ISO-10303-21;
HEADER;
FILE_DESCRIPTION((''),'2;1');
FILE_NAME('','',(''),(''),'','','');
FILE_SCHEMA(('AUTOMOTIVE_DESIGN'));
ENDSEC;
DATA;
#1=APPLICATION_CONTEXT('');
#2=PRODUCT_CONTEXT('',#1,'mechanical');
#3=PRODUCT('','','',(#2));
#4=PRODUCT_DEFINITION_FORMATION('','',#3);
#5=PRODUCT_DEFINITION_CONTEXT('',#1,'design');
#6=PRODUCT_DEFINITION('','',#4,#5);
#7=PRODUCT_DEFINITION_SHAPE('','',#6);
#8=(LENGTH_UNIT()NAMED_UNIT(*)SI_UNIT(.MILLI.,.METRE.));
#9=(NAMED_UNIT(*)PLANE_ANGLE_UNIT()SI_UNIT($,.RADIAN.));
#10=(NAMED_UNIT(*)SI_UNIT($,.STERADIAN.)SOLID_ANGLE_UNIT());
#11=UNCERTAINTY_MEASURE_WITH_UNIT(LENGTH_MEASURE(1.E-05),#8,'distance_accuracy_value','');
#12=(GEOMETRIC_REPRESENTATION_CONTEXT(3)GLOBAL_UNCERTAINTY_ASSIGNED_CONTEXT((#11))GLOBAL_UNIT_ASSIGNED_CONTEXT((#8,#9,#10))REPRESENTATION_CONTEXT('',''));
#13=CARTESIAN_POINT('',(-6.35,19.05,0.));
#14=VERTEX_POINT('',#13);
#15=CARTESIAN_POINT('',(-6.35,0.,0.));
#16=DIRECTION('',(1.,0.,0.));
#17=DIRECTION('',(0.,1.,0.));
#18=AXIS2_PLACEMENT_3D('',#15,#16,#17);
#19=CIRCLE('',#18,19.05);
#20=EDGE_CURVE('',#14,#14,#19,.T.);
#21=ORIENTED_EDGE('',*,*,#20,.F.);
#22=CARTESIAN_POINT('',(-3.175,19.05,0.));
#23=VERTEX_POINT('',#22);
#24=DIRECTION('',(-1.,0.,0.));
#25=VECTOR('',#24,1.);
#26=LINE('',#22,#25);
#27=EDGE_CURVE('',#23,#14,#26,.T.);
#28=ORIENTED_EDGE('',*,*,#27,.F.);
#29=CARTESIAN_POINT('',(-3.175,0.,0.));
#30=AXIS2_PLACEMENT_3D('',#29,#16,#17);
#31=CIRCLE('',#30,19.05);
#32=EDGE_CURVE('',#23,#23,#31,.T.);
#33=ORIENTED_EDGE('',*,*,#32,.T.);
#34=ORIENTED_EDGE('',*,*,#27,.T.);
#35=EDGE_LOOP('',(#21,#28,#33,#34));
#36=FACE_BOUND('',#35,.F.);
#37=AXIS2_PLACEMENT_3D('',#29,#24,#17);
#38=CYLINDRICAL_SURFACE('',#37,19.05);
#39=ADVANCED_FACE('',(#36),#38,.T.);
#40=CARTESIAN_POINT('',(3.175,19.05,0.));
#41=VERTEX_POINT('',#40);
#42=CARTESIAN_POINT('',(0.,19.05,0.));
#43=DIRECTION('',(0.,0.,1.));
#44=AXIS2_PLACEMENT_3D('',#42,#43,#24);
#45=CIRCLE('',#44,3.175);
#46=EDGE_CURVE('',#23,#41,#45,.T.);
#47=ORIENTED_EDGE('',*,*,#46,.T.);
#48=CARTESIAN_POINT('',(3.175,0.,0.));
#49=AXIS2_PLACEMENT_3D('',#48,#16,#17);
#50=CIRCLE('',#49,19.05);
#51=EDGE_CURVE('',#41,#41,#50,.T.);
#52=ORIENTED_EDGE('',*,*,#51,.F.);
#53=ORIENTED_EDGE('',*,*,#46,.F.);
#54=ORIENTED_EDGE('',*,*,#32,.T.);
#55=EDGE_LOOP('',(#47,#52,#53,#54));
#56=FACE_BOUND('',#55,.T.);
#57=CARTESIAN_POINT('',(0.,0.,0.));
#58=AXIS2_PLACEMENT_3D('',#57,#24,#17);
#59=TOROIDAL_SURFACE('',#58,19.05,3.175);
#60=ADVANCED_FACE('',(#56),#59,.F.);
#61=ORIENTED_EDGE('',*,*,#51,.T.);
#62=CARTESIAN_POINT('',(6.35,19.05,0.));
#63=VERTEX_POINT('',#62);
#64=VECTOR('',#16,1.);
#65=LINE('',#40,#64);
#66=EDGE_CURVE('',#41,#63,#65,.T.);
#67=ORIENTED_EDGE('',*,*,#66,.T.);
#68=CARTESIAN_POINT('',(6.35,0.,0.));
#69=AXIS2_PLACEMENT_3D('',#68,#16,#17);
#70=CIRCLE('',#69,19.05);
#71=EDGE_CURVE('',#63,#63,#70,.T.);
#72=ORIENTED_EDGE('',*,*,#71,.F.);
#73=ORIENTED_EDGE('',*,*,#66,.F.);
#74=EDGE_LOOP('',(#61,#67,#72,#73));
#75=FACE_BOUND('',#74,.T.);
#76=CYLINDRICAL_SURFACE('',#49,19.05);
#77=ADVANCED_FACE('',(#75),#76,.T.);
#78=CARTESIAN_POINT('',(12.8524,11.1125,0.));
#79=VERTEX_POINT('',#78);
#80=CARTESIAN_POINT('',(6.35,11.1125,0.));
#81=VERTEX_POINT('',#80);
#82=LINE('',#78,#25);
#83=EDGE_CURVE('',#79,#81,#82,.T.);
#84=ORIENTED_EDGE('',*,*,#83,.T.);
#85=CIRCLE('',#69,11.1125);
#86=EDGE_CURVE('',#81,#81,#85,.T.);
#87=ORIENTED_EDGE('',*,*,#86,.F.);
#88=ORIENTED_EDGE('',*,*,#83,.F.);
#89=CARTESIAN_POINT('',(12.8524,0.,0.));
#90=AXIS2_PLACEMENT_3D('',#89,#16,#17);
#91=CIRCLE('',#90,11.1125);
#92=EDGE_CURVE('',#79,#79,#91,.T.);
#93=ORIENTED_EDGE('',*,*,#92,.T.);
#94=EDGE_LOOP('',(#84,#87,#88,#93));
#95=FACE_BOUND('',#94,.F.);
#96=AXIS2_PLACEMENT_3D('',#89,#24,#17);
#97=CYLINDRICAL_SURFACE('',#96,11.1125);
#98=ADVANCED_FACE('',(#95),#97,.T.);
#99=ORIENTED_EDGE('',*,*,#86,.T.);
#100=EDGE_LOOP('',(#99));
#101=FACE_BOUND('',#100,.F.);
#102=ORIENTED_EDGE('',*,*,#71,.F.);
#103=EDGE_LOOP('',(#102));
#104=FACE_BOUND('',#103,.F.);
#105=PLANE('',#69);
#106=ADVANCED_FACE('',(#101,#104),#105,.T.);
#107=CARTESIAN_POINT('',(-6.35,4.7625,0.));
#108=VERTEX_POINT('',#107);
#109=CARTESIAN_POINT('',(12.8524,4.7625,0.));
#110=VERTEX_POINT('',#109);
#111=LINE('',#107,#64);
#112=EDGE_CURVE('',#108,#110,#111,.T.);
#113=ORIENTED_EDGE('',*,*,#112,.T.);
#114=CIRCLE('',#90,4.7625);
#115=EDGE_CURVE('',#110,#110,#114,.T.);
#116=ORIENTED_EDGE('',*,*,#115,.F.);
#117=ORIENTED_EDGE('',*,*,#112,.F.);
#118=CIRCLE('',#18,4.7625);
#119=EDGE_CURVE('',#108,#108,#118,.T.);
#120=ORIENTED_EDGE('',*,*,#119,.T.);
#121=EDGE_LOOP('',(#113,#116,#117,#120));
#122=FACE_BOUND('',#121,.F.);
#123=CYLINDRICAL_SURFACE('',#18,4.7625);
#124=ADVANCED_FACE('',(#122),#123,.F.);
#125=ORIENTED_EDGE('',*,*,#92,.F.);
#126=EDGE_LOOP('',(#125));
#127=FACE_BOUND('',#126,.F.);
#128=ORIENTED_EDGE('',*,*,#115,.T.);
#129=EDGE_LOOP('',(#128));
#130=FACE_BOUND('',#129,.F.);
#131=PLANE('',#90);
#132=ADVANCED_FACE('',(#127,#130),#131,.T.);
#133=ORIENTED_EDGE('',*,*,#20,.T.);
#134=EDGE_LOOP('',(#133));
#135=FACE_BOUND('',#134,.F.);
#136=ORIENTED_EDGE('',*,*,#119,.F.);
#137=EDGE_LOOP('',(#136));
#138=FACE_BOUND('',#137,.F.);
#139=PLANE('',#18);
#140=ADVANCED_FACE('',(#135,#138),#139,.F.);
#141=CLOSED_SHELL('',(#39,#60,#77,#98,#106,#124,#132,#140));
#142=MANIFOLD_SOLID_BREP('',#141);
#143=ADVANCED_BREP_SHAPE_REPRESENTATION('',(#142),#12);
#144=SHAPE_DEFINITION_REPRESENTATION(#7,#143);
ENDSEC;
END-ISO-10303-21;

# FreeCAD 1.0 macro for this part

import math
import FreeCAD as App
import Part
import Sketcher
Q = App.Units.Quantity

doc = App.newDocument("Part")
body = doc.addObject("PartDesign::Body", "Body")

# Sketch on XY plane
sketch1 = doc.addObject("Sketcher::SketchObject", "Sketch")
body.addObject(sketch1)
sketch1.AttachmentSupport = (doc.XY_Plane, [""])
sketch1.MapMode = "FlatFace"
sketch1.addGeometry([
    Part.ArcOfCircle(Part.Circle(App.Vector(0, 19.1, 0), App.Vector(0, 0, 1), 3.2), math.radians(180), math.radians(360)),  # 0
    Part.LineSegment(App.Vector(-3.2, 19.1, 0), App.Vector(-6.3, 19.1, 0)),  # 1
    Part.LineSegment(App.Vector(-6.3, 19.1, 0), App.Vector(-6.3, 4.8, 0)),  # 2
    Part.LineSegment(App.Vector(-6.3, 4.8, 0), App.Vector(12.9, 4.8, 0)),  # 3
    Part.LineSegment(App.Vector(12.9, 4.8, 0), App.Vector(12.9, 11.1, 0)),  # 4
    Part.LineSegment(App.Vector(12.9, 11.1, 0), App.Vector(6.3, 11.1, 0)),  # 5
    Part.LineSegment(App.Vector(6.3, 11.1, 0), App.Vector(6.3, 19.1, 0)),  # 6
    Part.LineSegment(App.Vector(6.3, 19.1, 0), App.Vector(3.2, 19.1, 0)),  # 7
], False)
sketch1.addConstraint([
    Sketcher.Constraint("Coincident", 0, 1, 1, 1),
    Sketcher.Constraint("Coincident", 1, 2, 2, 1),
    Sketcher.Constraint("Coincident", 2, 2, 3, 1),
    Sketcher.Constraint("Coincident", 3, 2, 4, 1),
    Sketcher.Constraint("Coincident", 4, 2, 5, 1),
    Sketcher.Constraint("Coincident", 5, 2, 6, 1),
    Sketcher.Constraint("Coincident", 6, 2, 7, 1),
    Sketcher.Constraint("Coincident", 7, 2, 0, 2),
    Sketcher.Constraint("Horizontal", 1),
    Sketcher.Constraint("Vertical", 2),
    Sketcher.Constraint("Horizontal", 3),
    Sketcher.Constraint("Vertical", 4),
    Sketcher.Constraint("Horizontal", 5),
    Sketcher.Constraint("Vertical", 6),
    Sketcher.Constraint("Horizontal", 7),
    Sketcher.Constraint("Symmetric", 1, 2, 6, 2, -2),
    Sketcher.Constraint("PointOnObject", 0, 3, -2),
    Sketcher.Constraint("Radius", 0, Q("0.125 in")),
    Sketcher.Constraint("DistanceY", 4, 1, 4, 2, Q("0.25 in")),
    Sketcher.Constraint("DistanceX", 1, 2, 1, 1, Q("0.125 in")),
    Sketcher.Constraint("DistanceX", 5, 2, 5, 1, Q("0.256 in")),
    Sketcher.Constraint("DistanceY", -1, 1, 0, 3, Q("0.75 in")),
    Sketcher.Constraint("DistanceY", -1, 1, 0, 1, Q("0.75 in")),
    Sketcher.Constraint("DistanceY", -1, 1, 2, 2, Q("0.1875 in")),
])
revolution = doc.addObject("PartDesign::Revolution", "Revolution")
body.addObject(revolution)
revolution.Profile = sketch1
revolution.ReferenceAxis = (sketch1, ["H_Axis"])
revolution.Angle = 360

doc.recompute()
